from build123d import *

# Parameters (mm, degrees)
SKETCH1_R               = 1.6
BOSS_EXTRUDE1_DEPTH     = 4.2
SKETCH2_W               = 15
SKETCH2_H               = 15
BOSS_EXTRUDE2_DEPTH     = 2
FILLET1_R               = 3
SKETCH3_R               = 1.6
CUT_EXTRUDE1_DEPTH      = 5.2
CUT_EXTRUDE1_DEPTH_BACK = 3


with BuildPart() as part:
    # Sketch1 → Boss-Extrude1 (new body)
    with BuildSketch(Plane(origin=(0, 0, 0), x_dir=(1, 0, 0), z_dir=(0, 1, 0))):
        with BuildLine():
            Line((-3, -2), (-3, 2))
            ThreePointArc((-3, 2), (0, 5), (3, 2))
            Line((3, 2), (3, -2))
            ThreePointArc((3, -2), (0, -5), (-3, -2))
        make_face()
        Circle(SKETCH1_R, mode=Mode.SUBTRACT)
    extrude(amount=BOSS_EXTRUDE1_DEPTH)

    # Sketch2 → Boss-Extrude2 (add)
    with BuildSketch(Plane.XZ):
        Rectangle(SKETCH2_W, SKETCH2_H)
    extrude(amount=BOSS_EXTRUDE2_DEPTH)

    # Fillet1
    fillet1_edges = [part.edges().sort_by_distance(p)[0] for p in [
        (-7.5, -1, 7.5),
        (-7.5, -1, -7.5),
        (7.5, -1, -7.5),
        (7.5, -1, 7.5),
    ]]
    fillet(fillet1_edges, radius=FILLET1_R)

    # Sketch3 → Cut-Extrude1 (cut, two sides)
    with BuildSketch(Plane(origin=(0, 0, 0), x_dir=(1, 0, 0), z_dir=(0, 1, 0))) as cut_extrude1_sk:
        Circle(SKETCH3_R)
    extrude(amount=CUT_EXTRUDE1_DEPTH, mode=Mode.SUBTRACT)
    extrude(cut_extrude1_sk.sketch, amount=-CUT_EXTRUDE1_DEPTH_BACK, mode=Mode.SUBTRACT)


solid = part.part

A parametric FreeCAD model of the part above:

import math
import FreeCAD as App
import Part
import Sketcher
from FreeCAD import Vector


def edges_at(feature, points):
    """Names of the edges that pass closest to the given points."""
    edges = feature.Shape.Edges
    near = lambda p: min(range(len(edges)), key=lambda i: edges[i].distToShape(Part.Vertex(*p))[0])
    return sorted({f"Edge{near(p) + 1}" for p in points})


def add_polygon(sketch, points):
    """Adds a closed chain of lines whose ends are joined by coincident constraints."""
    first, n = sketch.GeometryCount, len(points)
    for a, b in zip(points, points[1:] + points[:1]):
        sketch.addGeometry(Part.LineSegment(App.Vector(*a, 0), App.Vector(*b, 0)), False)
    for i in range(n):
        sketch.addConstraint(Sketcher.Constraint("Coincident", first + i, 2, first + (i + 1) % n, 1))

doc = App.newDocument("Part")
body = doc.addObject("PartDesign::Body", "Body")

# Sketch on XZ plane
sketch1 = body.newObject("Sketcher::SketchObject", "Sketch")
sketch1.AttachmentSupport = (doc.getObject("XZ_Plane"), [""])
sketch1.MapMode = "FlatFace"
sketch1.addGeometry([
    Part.LineSegment(Vector(-3, -2, 0), Vector(-3, 2, 0)),  # 0
    Part.ArcOfCircle(Part.Circle(Vector(0, 2, 0), Vector(0, 0, 1), 3), math.radians(0), math.radians(180)),  # 1
    Part.LineSegment(Vector(3, 2, 0), Vector(3, -2, 0)),  # 2
    Part.ArcOfCircle(Part.Circle(Vector(0, -2, 0), Vector(0, 0, 1), 3), math.radians(180), math.radians(360)),  # 3
    Part.Circle(Vector(0, 0, 0), Vector(0, 0, 1), 1.6),  # 4
], False)
sketch1.addConstraint([
    Sketcher.Constraint("Tangent", 0, 2, 1, 2),
    Sketcher.Constraint("Tangent", 1, 1, 2, 1),
    Sketcher.Constraint("Tangent", 2, 2, 3, 2),
    Sketcher.Constraint("Tangent", 3, 1, 0, 1),
    Sketcher.Constraint("Vertical", 0),
    Sketcher.Constraint("Vertical", 2),
    Sketcher.Constraint("Coincident", 4, 3, -1, 1),
    Sketcher.Constraint("Symmetric", 1, 3, 3, 3, -1, 1),
    Sketcher.Constraint("Radius", 1, 3.0),
    Sketcher.Constraint("Diameter", 4, 3.2),
    Sketcher.Constraint("DistanceY", 0, 1, 0, 2, 4.0),
])
pad1 = body.newObject("PartDesign::Pad", "Pad")
pad1.Profile = sketch1
pad1.Length = 4.2
pad1.Reversed = True

# Sketch on XZ plane
sketch2 = body.newObject("Sketcher::SketchObject", "Sketch001")
sketch2.AttachmentSupport = (doc.getObject("XZ_Plane"), [""])
sketch2.MapMode = "FlatFace"
add_polygon(sketch2, [(-8, 8), (-8, -8), (8, -8), (8, 8)])  # lines 0-3
sketch2.addConstraint([
    Sketcher.Constraint("Vertical", 0),
    Sketcher.Constraint("Horizontal", 1),
    Sketcher.Constraint("Vertical", 2),
    Sketcher.Constraint("Horizontal", 3),
    Sketcher.Constraint("Symmetric", 0, 2, 2, 2, -1, 1),
    Sketcher.Constraint("Equal", 3, 0),
    Sketcher.Constraint("DistanceX", 1, 1, 1, 2, 15.0),
])
pad2 = body.newObject("PartDesign::Pad", "Pad001")
pad2.Profile = sketch2
pad2.Length = 2
doc.recompute()

fillet = body.newObject("PartDesign::Fillet", "Fillet")
fillet.Base = (pad2, edges_at(pad2, [
    (-7.5, -1, 7.5),
    (-7.5, -1, -7.5),
    (7.5, -1, -7.5),
    (7.5, -1, 7.5),
]))
fillet.Radius = 3

# Sketch on XZ plane
sketch3 = body.newObject("Sketcher::SketchObject", "Sketch002")
sketch3.AttachmentSupport = (doc.getObject("XZ_Plane"), [""])
sketch3.MapMode = "FlatFace"
sketch3.addGeometry(Part.Circle(Vector(0, 0, 0), Vector(0, 0, 1), 1.6), False)
sketch3.addConstraint([
    Sketcher.Constraint("Coincident", 0, 3, -1, 1),
    Sketcher.Constraint("Diameter", 0, 3.2),
])
pocket1 = body.newObject("PartDesign::Pocket", "Pocket")
pocket1.Profile = sketch3
pocket1.Type = "ThroughAll"
pocket1.Midplane = True

doc.recompute()
